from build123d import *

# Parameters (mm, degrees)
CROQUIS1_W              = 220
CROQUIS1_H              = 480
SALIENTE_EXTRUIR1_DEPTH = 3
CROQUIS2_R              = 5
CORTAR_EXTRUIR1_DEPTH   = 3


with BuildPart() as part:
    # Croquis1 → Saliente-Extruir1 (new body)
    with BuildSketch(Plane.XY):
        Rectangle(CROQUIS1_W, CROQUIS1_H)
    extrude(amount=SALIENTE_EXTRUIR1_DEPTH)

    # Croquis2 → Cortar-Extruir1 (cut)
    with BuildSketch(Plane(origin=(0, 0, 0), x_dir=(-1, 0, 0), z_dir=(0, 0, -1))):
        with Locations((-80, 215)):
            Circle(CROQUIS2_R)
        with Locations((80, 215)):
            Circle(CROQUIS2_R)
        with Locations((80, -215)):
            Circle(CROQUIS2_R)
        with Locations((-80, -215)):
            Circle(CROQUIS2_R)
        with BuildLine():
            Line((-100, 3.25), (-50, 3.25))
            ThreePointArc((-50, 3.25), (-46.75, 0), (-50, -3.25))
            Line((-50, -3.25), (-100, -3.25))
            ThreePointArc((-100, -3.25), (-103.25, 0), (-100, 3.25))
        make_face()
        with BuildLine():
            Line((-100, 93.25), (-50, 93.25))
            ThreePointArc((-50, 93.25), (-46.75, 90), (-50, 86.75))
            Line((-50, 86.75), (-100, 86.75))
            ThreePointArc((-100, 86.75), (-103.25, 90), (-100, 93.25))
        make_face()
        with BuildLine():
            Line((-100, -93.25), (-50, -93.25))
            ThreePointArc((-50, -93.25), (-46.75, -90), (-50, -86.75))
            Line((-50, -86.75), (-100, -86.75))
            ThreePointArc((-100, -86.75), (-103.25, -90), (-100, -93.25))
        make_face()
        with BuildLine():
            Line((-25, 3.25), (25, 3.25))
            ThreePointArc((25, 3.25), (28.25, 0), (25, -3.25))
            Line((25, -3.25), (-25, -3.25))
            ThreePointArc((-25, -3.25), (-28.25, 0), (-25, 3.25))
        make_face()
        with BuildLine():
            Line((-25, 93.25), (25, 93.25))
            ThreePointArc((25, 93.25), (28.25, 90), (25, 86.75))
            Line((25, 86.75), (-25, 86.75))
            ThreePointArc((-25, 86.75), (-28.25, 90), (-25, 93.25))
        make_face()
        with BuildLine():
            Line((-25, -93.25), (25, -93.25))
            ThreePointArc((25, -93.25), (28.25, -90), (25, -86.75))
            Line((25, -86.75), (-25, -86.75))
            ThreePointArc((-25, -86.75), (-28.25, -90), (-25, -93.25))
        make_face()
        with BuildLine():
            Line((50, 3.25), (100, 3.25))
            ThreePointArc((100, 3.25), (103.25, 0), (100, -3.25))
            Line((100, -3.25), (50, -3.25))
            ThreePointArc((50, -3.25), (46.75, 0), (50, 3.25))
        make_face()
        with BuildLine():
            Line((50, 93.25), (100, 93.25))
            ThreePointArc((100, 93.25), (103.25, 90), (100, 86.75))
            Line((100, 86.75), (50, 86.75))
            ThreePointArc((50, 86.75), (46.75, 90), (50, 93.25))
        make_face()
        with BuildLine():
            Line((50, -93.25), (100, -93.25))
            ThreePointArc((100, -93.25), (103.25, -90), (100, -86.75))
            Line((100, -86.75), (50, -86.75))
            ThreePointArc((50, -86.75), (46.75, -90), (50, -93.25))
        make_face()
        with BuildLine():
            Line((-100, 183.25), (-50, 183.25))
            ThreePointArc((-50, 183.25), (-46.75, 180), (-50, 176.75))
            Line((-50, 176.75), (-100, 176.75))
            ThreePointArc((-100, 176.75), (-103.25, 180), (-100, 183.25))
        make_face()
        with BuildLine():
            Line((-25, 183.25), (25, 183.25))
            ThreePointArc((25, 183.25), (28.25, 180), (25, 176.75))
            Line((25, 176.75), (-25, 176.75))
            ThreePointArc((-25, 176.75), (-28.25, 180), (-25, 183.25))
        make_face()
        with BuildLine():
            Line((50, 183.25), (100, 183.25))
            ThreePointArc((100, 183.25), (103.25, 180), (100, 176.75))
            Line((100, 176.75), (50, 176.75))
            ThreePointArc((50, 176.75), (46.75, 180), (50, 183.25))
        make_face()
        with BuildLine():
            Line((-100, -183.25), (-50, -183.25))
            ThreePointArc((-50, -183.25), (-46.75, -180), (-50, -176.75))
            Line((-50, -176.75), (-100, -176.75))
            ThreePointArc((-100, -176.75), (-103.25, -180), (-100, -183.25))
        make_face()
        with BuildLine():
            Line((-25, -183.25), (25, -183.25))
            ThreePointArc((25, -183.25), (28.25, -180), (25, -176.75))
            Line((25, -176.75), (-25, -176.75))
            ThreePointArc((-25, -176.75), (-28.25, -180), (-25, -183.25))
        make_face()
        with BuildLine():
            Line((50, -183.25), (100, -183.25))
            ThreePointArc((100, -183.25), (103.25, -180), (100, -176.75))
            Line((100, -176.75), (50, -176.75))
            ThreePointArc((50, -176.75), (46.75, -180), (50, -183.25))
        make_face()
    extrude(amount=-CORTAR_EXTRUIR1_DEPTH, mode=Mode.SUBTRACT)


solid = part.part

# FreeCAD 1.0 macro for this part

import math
import FreeCAD as App
import Part
import Sketcher

V = App.Vector
Q = App.Units.Quantity

doc = App.newDocument("Part")
body = doc.addObject("PartDesign::Body", "Body")

# Sketch on XY plane
sketch1 = body.newObject("Sketcher::SketchObject", "Sketch")
sketch1.AttachmentSupport = (doc.getObject("XY_Plane"), [""])
sketch1.MapMode = "FlatFace"
sketch1.addGeometry([
    Part.LineSegment(V(-110, 240, 0), V(-110, -240, 0)),
    Part.LineSegment(V(-110, -240, 0), V(110, -240, 0)),
    Part.LineSegment(V(110, -240, 0), V(110, 240, 0)),
    Part.LineSegment(V(110, 240, 0), V(-110, 240, 0)),
], False)
sketch1.addConstraint([
    Sketcher.Constraint("Coincident", 0, 2, 1, 1),
    Sketcher.Constraint("Coincident", 1, 2, 2, 1),
    Sketcher.Constraint("Coincident", 2, 2, 3, 1),
    Sketcher.Constraint("Coincident", 3, 2, 0, 1),
    Sketcher.Constraint("Vertical", 0),
    Sketcher.Constraint("Horizontal", 1),
    Sketcher.Constraint("Vertical", 2),
    Sketcher.Constraint("Horizontal", 3),
    Sketcher.Constraint("Symmetric", 0, 2, 2, 2, -1, 1),
    Sketcher.Constraint("DistanceX", 1, 1, 1, 2, Q("220 mm")),
    Sketcher.Constraint("DistanceY", 0, 2, 0, 1, Q("480 mm")),
])
pad1 = body.newObject("PartDesign::Pad", "Pad")
pad1.Profile = sketch1
pad1.Length = 3

# Sketch on XY plane
sketch2 = body.newObject("Sketcher::SketchObject", "Sketch001")
sketch2.AttachmentSupport = (doc.getObject("XY_Plane"), [""])
sketch2.MapMode = "FlatFace"
sketch2.addGeometry([
    Part.Circle(V(80, 215, 0), V(0, 0, 1), 5),  # 0
    Part.Circle(V(-80, 215, 0), V(0, 0, 1), 5),  # 1
    Part.Circle(V(-80, -215, 0), V(0, 0, 1), 5),  # 2
    Part.Circle(V(80, -215, 0), V(0, 0, 1), 5),  # 3
    Part.LineSegment(V(50, 3.25, 0), V(100, 3.25, 0)),  # 4
    Part.ArcOfCircle(Part.Circle(V(100, 0, 0), V(0, 0, 1), 3.25), math.radians(-90), math.radians(90)),  # 5
    Part.LineSegment(V(100, -3.25, 0), V(50, -3.25, 0)),  # 6
    Part.ArcOfCircle(Part.Circle(V(50, 0, 0), V(0, 0, 1), 3.25), math.radians(90), math.radians(270)),  # 7
    Part.LineSegment(V(50, 93.25, 0), V(100, 93.25, 0)),  # 8
    Part.ArcOfCircle(Part.Circle(V(100, 90, 0), V(0, 0, 1), 3.25), math.radians(-90), math.radians(90)),  # 9
    Part.LineSegment(V(100, 86.75, 0), V(50, 86.75, 0)),  # 10
    Part.ArcOfCircle(Part.Circle(V(50, 90, 0), V(0, 0, 1), 3.25), math.radians(90), math.radians(270)),  # 11
    Part.LineSegment(V(100, -93.25, 0), V(50, -93.25, 0)),  # 12
    Part.ArcOfCircle(Part.Circle(V(50, -90, 0), V(0, 0, 1), 3.25), math.radians(90), math.radians(270)),  # 13
    Part.LineSegment(V(50, -86.75, 0), V(100, -86.75, 0)),  # 14
    Part.ArcOfCircle(Part.Circle(V(100, -90, 0), V(0, 0, 1), 3.25), math.radians(-90), math.radians(90)),  # 15
    Part.LineSegment(V(-25, 3.25, 0), V(25, 3.25, 0)),  # 16
    Part.ArcOfCircle(Part.Circle(V(25, 0, 0), V(0, 0, 1), 3.25), math.radians(-90), math.radians(90)),  # 17
    Part.LineSegment(V(25, -3.25, 0), V(-25, -3.25, 0)),  # 18
    Part.ArcOfCircle(Part.Circle(V(-25, 0, 0), V(0, 0, 1), 3.25), math.radians(90), math.radians(270)),  # 19
    Part.LineSegment(V(-25, 93.25, 0), V(25, 93.25, 0)),  # 20
    Part.ArcOfCircle(Part.Circle(V(25, 90, 0), V(0, 0, 1), 3.25), math.radians(-90), math.radians(90)),  # 21
    Part.LineSegment(V(25, 86.75, 0), V(-25, 86.75, 0)),  # 22
    Part.ArcOfCircle(Part.Circle(V(-25, 90, 0), V(0, 0, 1), 3.25), math.radians(90), math.radians(270)),  # 23
    Part.LineSegment(V(25, -93.25, 0), V(-25, -93.25, 0)),  # 24
    Part.ArcOfCircle(Part.Circle(V(-25, -90, 0), V(0, 0, 1), 3.25), math.radians(90), math.radians(270)),  # 25
    Part.LineSegment(V(-25, -86.75, 0), V(25, -86.75, 0)),  # 26
    Part.ArcOfCircle(Part.Circle(V(25, -90, 0), V(0, 0, 1), 3.25), math.radians(-90), math.radians(90)),  # 27
    Part.LineSegment(V(-100, 3.25, 0), V(-50, 3.25, 0)),  # 28
    Part.ArcOfCircle(Part.Circle(V(-50, 0, 0), V(0, 0, 1), 3.25), math.radians(-90), math.radians(90)),  # 29
    Part.LineSegment(V(-50, -3.25, 0), V(-100, -3.25, 0)),  # 30
    Part.ArcOfCircle(Part.Circle(V(-100, 0, 0), V(0, 0, 1), 3.25), math.radians(90), math.radians(270)),  # 31
    Part.LineSegment(V(-100, 93.25, 0), V(-50, 93.25, 0)),  # 32
    Part.ArcOfCircle(Part.Circle(V(-50, 90, 0), V(0, 0, 1), 3.25), math.radians(-90), math.radians(90)),  # 33
    Part.LineSegment(V(-50, 86.75, 0), V(-100, 86.75, 0)),  # 34
    Part.ArcOfCircle(Part.Circle(V(-100, 90, 0), V(0, 0, 1), 3.25), math.radians(90), math.radians(270)),  # 35
    Part.LineSegment(V(-50, -93.25, 0), V(-100, -93.25, 0)),  # 36
    Part.ArcOfCircle(Part.Circle(V(-100, -90, 0), V(0, 0, 1), 3.25), math.radians(90), math.radians(270)),  # 37
    Part.LineSegment(V(-100, -86.75, 0), V(-50, -86.75, 0)),  # 38
    Part.ArcOfCircle(Part.Circle(V(-50, -90, 0), V(0, 0, 1), 3.25), math.radians(-90), math.radians(90)),  # 39
    Part.LineSegment(V(50, 183.25, 0), V(100, 183.25, 0)),  # 40
    Part.ArcOfCircle(Part.Circle(V(100, 180, 0), V(0, 0, 1), 3.25), math.radians(-90), math.radians(90)),  # 41
    Part.LineSegment(V(100, 176.75, 0), V(50, 176.75, 0)),  # 42
    Part.ArcOfCircle(Part.Circle(V(50, 180, 0), V(0, 0, 1), 3.25), math.radians(90), math.radians(270)),  # 43
    Part.LineSegment(V(-25, 183.25, 0), V(25, 183.25, 0)),  # 44
    Part.ArcOfCircle(Part.Circle(V(25, 180, 0), V(0, 0, 1), 3.25), math.radians(-90), math.radians(90)),  # 45
    Part.LineSegment(V(25, 176.75, 0), V(-25, 176.75, 0)),  # 46
    Part.ArcOfCircle(Part.Circle(V(-25, 180, 0), V(0, 0, 1), 3.25), math.radians(90), math.radians(270)),  # 47
    Part.LineSegment(V(-100, 183.25, 0), V(-50, 183.25, 0)),  # 48
    Part.ArcOfCircle(Part.Circle(V(-50, 180, 0), V(0, 0, 1), 3.25), math.radians(-90), math.radians(90)),  # 49
    Part.LineSegment(V(-50, 176.75, 0), V(-100, 176.75, 0)),  # 50
    Part.ArcOfCircle(Part.Circle(V(-100, 180, 0), V(0, 0, 1), 3.25), math.radians(90), math.radians(270)),  # 51
    Part.LineSegment(V(100, -183.25, 0), V(50, -183.25, 0)),  # 52
    Part.ArcOfCircle(Part.Circle(V(50, -180, 0), V(0, 0, 1), 3.25), math.radians(90), math.radians(270)),  # 53
    Part.LineSegment(V(50, -176.75, 0), V(100, -176.75, 0)),  # 54
    Part.ArcOfCircle(Part.Circle(V(100, -180, 0), V(0, 0, 1), 3.25), math.radians(-90), math.radians(90)),  # 55
    Part.LineSegment(V(25, -183.25, 0), V(-25, -183.25, 0)),  # 56
    Part.ArcOfCircle(Part.Circle(V(-25, -180, 0), V(0, 0, 1), 3.25), math.radians(90), math.radians(270)),  # 57
    Part.LineSegment(V(-25, -176.75, 0), V(25, -176.75, 0)),  # 58
    Part.ArcOfCircle(Part.Circle(V(25, -180, 0), V(0, 0, 1), 3.25), math.radians(-90), math.radians(90)),  # 59
    Part.LineSegment(V(-50, -183.25, 0), V(-100, -183.25, 0)),  # 60
    Part.ArcOfCircle(Part.Circle(V(-100, -180, 0), V(0, 0, 1), 3.25), math.radians(90), math.radians(270)),  # 61
    Part.LineSegment(V(-100, -176.75, 0), V(-50, -176.75, 0)),  # 62
    Part.ArcOfCircle(Part.Circle(V(-50, -180, 0), V(0, 0, 1), 3.25), math.radians(-90), math.radians(90)),  # 63
], False)
sketch2.addConstraint([
    Sketcher.Constraint("Tangent", 4, 2, 5, 2),
    Sketcher.Constraint("Tangent", 5, 1, 6, 1),
    Sketcher.Constraint("Tangent", 6, 2, 7, 2),
    Sketcher.Constraint("Tangent", 7, 1, 4, 1),
    Sketcher.Constraint("Tangent", 8, 2, 9, 2),
    Sketcher.Constraint("Tangent", 9, 1, 10, 1),
    Sketcher.Constraint("Tangent", 10, 2, 11, 2),
    Sketcher.Constraint("Tangent", 11, 1, 8, 1),
    Sketcher.Constraint("Tangent", 12, 2, 13, 2),
    Sketcher.Constraint("Tangent", 13, 1, 14, 1),
    Sketcher.Constraint("Tangent", 14, 2, 15, 2),
    Sketcher.Constraint("Tangent", 15, 1, 12, 1),
    Sketcher.Constraint("Tangent", 16, 2, 17, 2),
    Sketcher.Constraint("Tangent", 17, 1, 18, 1),
    Sketcher.Constraint("Tangent", 18, 2, 19, 2),
    Sketcher.Constraint("Tangent", 19, 1, 16, 1),
    Sketcher.Constraint("Tangent", 20, 2, 21, 2),
    Sketcher.Constraint("Tangent", 21, 1, 22, 1),
    Sketcher.Constraint("Tangent", 22, 2, 23, 2),
    Sketcher.Constraint("Tangent", 23, 1, 20, 1),
    Sketcher.Constraint("Tangent", 24, 2, 25, 2),
    Sketcher.Constraint("Tangent", 25, 1, 26, 1),
    Sketcher.Constraint("Tangent", 26, 2, 27, 2),
    Sketcher.Constraint("Tangent", 27, 1, 24, 1),
    Sketcher.Constraint("Tangent", 28, 2, 29, 2),
    Sketcher.Constraint("Tangent", 29, 1, 30, 1),
    Sketcher.Constraint("Tangent", 30, 2, 31, 2),
    Sketcher.Constraint("Tangent", 31, 1, 28, 1),
    Sketcher.Constraint("Tangent", 32, 2, 33, 2),
    Sketcher.Constraint("Tangent", 33, 1, 34, 1),
    Sketcher.Constraint("Tangent", 34, 2, 35, 2),
    Sketcher.Constraint("Tangent", 35, 1, 32, 1),
    Sketcher.Constraint("Tangent", 36, 2, 37, 2),
    Sketcher.Constraint("Tangent", 37, 1, 38, 1),
    Sketcher.Constraint("Tangent", 38, 2, 39, 2),
    Sketcher.Constraint("Tangent", 39, 1, 36, 1),
    Sketcher.Constraint("Tangent", 40, 2, 41, 2),
    Sketcher.Constraint("Tangent", 41, 1, 42, 1),
    Sketcher.Constraint("Tangent", 42, 2, 43, 2),
    Sketcher.Constraint("Tangent", 43, 1, 40, 1),
    Sketcher.Constraint("Tangent", 44, 2, 45, 2),
    Sketcher.Constraint("Tangent", 45, 1, 46, 1),
    Sketcher.Constraint("Tangent", 46, 2, 47, 2),
    Sketcher.Constraint("Tangent", 47, 1, 44, 1),
    Sketcher.Constraint("Tangent", 48, 2, 49, 2),
    Sketcher.Constraint("Tangent", 49, 1, 50, 1),
    Sketcher.Constraint("Tangent", 50, 2, 51, 2),
    Sketcher.Constraint("Tangent", 51, 1, 48, 1),
    Sketcher.Constraint("Tangent", 52, 2, 53, 2),
    Sketcher.Constraint("Tangent", 53, 1, 54, 1),
    Sketcher.Constraint("Tangent", 54, 2, 55, 2),
    Sketcher.Constraint("Tangent", 55, 1, 52, 1),
    Sketcher.Constraint("Tangent", 56, 2, 57, 2),
    Sketcher.Constraint("Tangent", 57, 1, 58, 1),
    Sketcher.Constraint("Tangent", 58, 2, 59, 2),
    Sketcher.Constraint("Tangent", 59, 1, 56, 1),
    Sketcher.Constraint("Tangent", 60, 2, 61, 2),
    Sketcher.Constraint("Tangent", 61, 1, 62, 1),
    Sketcher.Constraint("Tangent", 62, 2, 63, 2),
    Sketcher.Constraint("Tangent", 63, 1, 60, 1),
    Sketcher.Constraint("Horizontal", 4),
    Sketcher.Constraint("Horizontal", 6),
    Sketcher.Constraint("Horizontal", 8),
    Sketcher.Constraint("Horizontal", 10),
    Sketcher.Constraint("Horizontal", 12),
    Sketcher.Constraint("Horizontal", 14),
    Sketcher.Constraint("Horizontal", 16),
    Sketcher.Constraint("Horizontal", 18),
    Sketcher.Constraint("Horizontal", 20),
    Sketcher.Constraint("Horizontal", 22),
    Sketcher.Constraint("Horizontal", 24),
    Sketcher.Constraint("Horizontal", 26),
    Sketcher.Constraint("Horizontal", 28),
    Sketcher.Constraint("Horizontal", 30),
    Sketcher.Constraint("Horizontal", 32),
    Sketcher.Constraint("Horizontal", 34),
    Sketcher.Constraint("Horizontal", 36),
    Sketcher.Constraint("Horizontal", 38),
    Sketcher.Constraint("Horizontal", 40),
    Sketcher.Constraint("Horizontal", 42),
    Sketcher.Constraint("Horizontal", 44),
    Sketcher.Constraint("Horizontal", 46),
    Sketcher.Constraint("Horizontal", 48),
    Sketcher.Constraint("Horizontal", 50),
    Sketcher.Constraint("Horizontal", 52),
    Sketcher.Constraint("Horizontal", 54),
    Sketcher.Constraint("Horizontal", 56),
    Sketcher.Constraint("Horizontal", 58),
    Sketcher.Constraint("Horizontal", 60),
    Sketcher.Constraint("Horizontal", 62),
    Sketcher.Constraint("Equal", 0, 1),
    Sketcher.Constraint("Equal", 1, 2),
    Sketcher.Constraint("Equal", 2, 3),
    Sketcher.Constraint("Equal", 7, 9),
    Sketcher.Constraint("Equal", 11, 13),
    Sketcher.Constraint("Equal", 15, 17),
    Sketcher.Constraint("Equal", 19, 21),
    Sketcher.Constraint("Equal", 23, 25),
    Sketcher.Constraint("Equal", 27, 29),
    Sketcher.Constraint("Equal", 31, 33),
    Sketcher.Constraint("Equal", 35, 37),
    Sketcher.Constraint("Equal", 39, 41),
    Sketcher.Constraint("Equal", 43, 45),
    Sketcher.Constraint("Equal", 47, 49),
    Sketcher.Constraint("Equal", 51, 53),
    Sketcher.Constraint("Equal", 55, 57),
    Sketcher.Constraint("Equal", 59, 61),
    Sketcher.Constraint("Symmetric", 0, 3, 2, 3, -1, 1),
    Sketcher.Constraint("Symmetric", 1, 3, 3, 3, -1, 1),
    Sketcher.Constraint("Symmetric", 17, 3, 19, 3, -1, 1),
    Sketcher.Constraint("Symmetric", 21, 3, 25, 3, -1, 1),
    Sketcher.Constraint("Symmetric", 7, 3, 29, 3, -1, 1),
    Sketcher.Constraint("Symmetric", 13, 3, 33, 3, -1, 1),
    Sketcher.Constraint("Symmetric", 9, 3, 37, 3, -1, 1),
    Sketcher.Constraint("Symmetric", 49, 3, 53, 3, -1, 1),
    Sketcher.Constraint("Symmetric", 45, 3, 57, 3, -1, 1),
    Sketcher.Constraint("Symmetric", 41, 3, 61, 3, -1, 1),
    Sketcher.Constraint("Symmetric", 0, 3, 1, 3, -2),
    Sketcher.Constraint("Symmetric", 5, 3, 31, 3, -2),
    Sketcher.Constraint("Symmetric", 11, 3, 33, 3, -2),
    Sketcher.Constraint("Symmetric", 43, 3, 49, 3, -2),
    Sketcher.Constraint("Horizontal", 11, 3, 21, 3),
    Sketcher.Constraint("Horizontal", 43, 3, 45, 3),
    Sketcher.Constraint("Vertical", 5, 3, 9, 3),
    Sketcher.Constraint("Vertical", 7, 3, 11, 3),
    Sketcher.Constraint("Vertical", 9, 3, 15, 3),
    Sketcher.Constraint("Vertical", 17, 3, 21, 3),
    Sketcher.Constraint("Vertical", 19, 3, 23, 3),
    Sketcher.Constraint("Vertical", 21, 3, 27, 3),
    Sketcher.Constraint("Vertical", 31, 3, 35, 3),
    Sketcher.Constraint("Vertical", 33, 3, 39, 3),
    Sketcher.Constraint("Vertical", 15, 3, 41, 3),
    Sketcher.Constraint("Vertical", 13, 3, 43, 3),
    Sketcher.Constraint("Vertical", 27, 3, 45, 3),
    Sketcher.Constraint("Vertical", 25, 3, 47, 3),
    Sketcher.Constraint("Vertical", 37, 3, 51, 3),
    Sketcher.Constraint("Vertical", 41, 3, 55, 3),
    Sketcher.Constraint("Vertical", 45, 3, 59, 3),
    Sketcher.Constraint("Vertical", 49, 3, 63, 3),
    Sketcher.Constraint("Equal", 14, 16),
    Sketcher.Constraint("Diameter", 0, Q("10 mm")),
    Sketcher.Constraint("DistanceX", 4, 1, 4, 2, Q("50 mm")),
    Sketcher.Constraint("Radius", 5, Q("3.25 mm")),
    Sketcher.Constraint("DistanceX", -1, 1, 0, 3, Q("80 mm")),
    Sketcher.Constraint("DistanceY", -1, 1, 0, 3, Q("215 mm")),
    Sketcher.Constraint("DistanceX", -1, 1, 5, 3, Q("100 mm")),
    Sketcher.Constraint("DistanceY", -1, 1, 9, 3, Q("90 mm")),
    Sketcher.Constraint("DistanceY", -1, 1, 41, 3, Q("180 mm")),
])
pocket1 = body.newObject("PartDesign::Pocket", "Pocket")
pocket1.Profile = sketch2
pocket1.Length = 3
pocket1.Reversed = True

doc.recompute()
